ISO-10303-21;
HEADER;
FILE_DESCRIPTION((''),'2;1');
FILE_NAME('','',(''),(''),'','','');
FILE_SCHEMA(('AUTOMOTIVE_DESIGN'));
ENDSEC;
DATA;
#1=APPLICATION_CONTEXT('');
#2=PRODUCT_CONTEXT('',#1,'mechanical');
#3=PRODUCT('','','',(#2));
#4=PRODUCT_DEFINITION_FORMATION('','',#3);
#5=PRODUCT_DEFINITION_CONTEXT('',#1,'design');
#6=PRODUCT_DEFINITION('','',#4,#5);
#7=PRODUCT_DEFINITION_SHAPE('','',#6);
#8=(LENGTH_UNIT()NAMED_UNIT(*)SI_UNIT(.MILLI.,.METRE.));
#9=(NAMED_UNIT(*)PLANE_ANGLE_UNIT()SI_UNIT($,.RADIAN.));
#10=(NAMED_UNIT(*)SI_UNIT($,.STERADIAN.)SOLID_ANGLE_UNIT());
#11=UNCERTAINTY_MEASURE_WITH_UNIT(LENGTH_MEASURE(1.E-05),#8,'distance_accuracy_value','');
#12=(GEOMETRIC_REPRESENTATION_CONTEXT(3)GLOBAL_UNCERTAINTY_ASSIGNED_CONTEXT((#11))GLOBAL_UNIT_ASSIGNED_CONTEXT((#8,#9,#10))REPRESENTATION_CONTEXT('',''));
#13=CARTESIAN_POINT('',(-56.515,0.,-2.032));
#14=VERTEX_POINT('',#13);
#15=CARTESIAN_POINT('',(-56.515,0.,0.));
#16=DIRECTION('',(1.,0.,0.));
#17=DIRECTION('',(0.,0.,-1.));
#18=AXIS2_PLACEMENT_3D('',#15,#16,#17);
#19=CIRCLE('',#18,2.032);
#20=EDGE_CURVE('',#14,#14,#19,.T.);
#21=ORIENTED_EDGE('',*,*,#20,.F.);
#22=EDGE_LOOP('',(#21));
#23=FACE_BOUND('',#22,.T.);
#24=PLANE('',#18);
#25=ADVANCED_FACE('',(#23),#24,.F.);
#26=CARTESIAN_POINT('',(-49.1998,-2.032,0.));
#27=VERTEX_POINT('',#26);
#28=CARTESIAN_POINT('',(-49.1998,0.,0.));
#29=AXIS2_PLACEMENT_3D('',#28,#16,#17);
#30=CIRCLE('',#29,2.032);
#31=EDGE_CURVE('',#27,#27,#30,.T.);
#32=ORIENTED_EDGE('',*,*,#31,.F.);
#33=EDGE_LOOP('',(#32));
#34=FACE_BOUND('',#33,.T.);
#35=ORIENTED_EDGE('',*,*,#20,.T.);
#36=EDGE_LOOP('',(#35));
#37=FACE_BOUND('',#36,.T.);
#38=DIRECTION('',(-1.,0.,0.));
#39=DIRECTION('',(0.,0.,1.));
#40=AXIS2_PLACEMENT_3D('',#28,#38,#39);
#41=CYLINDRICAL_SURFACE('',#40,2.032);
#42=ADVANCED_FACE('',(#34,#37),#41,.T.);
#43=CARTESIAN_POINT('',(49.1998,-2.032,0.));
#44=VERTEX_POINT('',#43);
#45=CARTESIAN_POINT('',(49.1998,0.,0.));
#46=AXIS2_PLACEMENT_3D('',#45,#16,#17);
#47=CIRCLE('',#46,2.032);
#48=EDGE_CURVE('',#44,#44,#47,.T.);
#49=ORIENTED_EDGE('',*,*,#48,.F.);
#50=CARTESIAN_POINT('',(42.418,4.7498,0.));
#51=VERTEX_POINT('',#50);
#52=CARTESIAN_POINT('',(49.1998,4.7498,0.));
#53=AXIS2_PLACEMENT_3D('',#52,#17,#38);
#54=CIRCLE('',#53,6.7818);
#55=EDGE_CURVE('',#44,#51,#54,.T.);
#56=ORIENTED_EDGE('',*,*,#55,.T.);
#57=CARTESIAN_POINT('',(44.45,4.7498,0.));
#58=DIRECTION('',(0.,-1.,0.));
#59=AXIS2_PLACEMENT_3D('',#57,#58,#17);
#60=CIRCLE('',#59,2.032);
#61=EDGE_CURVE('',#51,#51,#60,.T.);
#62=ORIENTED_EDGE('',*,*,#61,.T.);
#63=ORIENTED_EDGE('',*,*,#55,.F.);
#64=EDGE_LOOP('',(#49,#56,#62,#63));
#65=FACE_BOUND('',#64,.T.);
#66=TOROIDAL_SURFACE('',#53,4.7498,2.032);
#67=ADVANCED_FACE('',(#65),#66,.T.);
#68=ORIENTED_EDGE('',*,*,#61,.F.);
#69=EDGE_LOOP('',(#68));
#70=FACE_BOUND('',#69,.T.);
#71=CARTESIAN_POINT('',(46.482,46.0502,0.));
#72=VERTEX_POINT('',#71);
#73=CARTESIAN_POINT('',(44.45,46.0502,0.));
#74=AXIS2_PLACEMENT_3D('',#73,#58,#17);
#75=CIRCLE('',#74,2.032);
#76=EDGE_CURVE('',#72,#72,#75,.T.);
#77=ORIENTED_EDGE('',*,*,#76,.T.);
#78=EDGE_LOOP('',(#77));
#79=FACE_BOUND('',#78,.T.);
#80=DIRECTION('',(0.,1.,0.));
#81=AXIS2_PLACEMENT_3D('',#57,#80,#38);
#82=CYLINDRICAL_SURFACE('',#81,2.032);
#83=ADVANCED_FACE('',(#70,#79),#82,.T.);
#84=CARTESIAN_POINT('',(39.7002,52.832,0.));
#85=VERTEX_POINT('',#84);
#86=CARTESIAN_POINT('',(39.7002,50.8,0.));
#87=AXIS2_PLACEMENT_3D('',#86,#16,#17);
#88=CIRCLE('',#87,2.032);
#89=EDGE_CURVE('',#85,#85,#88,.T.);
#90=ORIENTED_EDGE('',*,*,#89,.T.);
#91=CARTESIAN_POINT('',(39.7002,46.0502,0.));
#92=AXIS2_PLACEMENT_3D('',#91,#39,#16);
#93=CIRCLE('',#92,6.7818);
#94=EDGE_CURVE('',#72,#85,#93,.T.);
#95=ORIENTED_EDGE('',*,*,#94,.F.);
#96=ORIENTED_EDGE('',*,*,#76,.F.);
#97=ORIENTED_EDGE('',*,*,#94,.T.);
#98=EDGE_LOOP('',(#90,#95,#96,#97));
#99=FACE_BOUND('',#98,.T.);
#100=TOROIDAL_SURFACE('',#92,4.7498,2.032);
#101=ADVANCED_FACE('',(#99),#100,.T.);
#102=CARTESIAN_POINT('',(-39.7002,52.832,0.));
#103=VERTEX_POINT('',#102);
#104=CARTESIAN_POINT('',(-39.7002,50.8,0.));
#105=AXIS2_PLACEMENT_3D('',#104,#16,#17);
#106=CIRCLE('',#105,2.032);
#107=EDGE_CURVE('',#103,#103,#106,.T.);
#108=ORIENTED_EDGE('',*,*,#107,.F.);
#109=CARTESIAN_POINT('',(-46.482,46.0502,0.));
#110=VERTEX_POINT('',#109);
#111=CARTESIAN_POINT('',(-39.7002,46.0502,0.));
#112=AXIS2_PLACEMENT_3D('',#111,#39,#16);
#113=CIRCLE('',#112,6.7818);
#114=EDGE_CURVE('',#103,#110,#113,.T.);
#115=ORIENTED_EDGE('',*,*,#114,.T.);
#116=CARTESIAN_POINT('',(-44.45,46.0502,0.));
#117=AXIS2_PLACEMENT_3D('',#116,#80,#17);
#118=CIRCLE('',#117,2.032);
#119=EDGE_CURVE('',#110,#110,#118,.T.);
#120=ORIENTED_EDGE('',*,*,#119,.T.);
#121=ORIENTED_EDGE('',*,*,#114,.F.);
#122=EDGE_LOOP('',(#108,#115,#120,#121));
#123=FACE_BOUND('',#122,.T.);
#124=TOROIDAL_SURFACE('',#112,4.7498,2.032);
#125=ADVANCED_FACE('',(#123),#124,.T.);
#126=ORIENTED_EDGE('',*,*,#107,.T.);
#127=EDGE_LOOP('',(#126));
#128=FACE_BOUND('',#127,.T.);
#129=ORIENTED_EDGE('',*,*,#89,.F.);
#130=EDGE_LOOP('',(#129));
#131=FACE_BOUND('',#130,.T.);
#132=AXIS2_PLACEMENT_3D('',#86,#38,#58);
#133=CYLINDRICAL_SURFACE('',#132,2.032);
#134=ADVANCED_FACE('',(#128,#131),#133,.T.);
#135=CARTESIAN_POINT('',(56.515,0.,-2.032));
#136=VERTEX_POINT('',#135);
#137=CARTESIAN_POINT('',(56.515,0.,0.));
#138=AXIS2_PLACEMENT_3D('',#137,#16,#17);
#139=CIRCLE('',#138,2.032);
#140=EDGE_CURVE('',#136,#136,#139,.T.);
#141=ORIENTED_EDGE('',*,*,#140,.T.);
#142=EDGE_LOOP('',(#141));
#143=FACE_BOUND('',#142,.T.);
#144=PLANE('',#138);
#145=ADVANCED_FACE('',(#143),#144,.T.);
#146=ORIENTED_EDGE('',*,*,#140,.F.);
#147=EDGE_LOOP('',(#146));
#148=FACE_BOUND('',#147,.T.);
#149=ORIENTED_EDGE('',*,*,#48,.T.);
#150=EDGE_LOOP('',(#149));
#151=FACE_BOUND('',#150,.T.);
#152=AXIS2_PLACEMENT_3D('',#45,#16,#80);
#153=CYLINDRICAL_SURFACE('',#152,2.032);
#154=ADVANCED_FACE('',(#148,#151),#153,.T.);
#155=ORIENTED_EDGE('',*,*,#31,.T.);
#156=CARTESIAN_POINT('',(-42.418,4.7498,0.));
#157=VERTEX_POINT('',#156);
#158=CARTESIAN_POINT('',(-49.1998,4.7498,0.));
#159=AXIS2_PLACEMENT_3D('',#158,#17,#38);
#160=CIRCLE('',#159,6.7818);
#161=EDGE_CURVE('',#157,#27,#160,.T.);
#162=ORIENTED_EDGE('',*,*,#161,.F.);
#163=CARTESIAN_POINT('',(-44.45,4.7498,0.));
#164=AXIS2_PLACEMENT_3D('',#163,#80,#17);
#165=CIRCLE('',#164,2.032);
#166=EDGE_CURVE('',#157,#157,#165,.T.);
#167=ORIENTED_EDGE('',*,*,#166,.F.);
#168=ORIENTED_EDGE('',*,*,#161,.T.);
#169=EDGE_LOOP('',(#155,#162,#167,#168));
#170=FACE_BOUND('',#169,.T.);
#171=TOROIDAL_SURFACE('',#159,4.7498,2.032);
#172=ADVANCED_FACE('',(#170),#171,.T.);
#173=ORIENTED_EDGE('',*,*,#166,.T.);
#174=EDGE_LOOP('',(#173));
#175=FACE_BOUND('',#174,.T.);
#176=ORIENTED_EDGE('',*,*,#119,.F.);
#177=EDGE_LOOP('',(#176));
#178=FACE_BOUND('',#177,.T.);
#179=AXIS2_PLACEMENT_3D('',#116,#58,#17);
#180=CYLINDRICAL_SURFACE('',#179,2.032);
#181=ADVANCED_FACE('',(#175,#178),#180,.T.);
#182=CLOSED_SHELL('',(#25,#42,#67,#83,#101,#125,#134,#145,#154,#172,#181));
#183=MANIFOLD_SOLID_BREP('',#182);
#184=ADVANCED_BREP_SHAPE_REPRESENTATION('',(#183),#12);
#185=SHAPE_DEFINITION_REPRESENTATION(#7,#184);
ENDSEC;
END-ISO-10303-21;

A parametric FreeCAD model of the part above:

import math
import FreeCAD as App
import Part
import Sketcher

V = App.Vector
Q = App.Units.Quantity

doc = App.newDocument("Part")
params = doc.addObject("Spreadsheet::Sheet", "Params")
for row, (alias, value) in enumerate([
    ("sketch1_diameter", "0.16 in"),
    ("sketch2_radius", "0.187 in"),
    ("sketch2_width", "0.288 in"),
], start=1):
    params.set(f"A{row}", alias)
    params.set(f"B{row}", "=" + value)
    params.setAlias(f"B{row}", alias)

body = doc.addObject("PartDesign::Body", "Body")

# Sketch on YZ plane
sketch1 = doc.addObject("Sketcher::SketchObject", "Sketch")
body.addObject(sketch1)
sketch1.AttachmentSupport = (doc.YZ_Plane, [""])
sketch1.MapMode = "FlatFace"
sketch1.AttachmentOffset = App.Placement(V(0, 0, 2.225 * 25.4), App.Rotation())
sketch1.addGeometry(Part.Circle(V(0, 0, 0), V(0, 0, 1), 2.032), False)
sketch1.addConstraint(Sketcher.Constraint("Coincident", 0, 3, -1, 1))
sketch1.addConstraint(Sketcher.Constraint("Diameter", 0, Q("0.16 in")))
sketch1.setExpression("Constraints[1]", "Params.sketch1_diameter")

# Sketch on XY plane
sketch2 = doc.addObject("Sketcher::SketchObject", "Sketch001")
body.addObject(sketch2)
sketch2.AttachmentSupport = (doc.XY_Plane, [""])
sketch2.MapMode = "FlatFace"
sketch2.addGeometry(Part.LineSegment(V(-56.515, 0, 0), V(-49.1998, 0, 0)), False)
sketch2.addGeometry(Part.ArcOfCircle(Part.Circle(V(-49.1998, 4.7498, 0), V(0, 0, 1), 4.7498), math.radians(-90), math.radians(0)), False)
sketch2.addGeometry(Part.LineSegment(V(-44.45, 4.7498, 0), V(-44.45, 46.0502, 0)), False)
sketch2.addGeometry(Part.ArcOfCircle(Part.Circle(V(-39.7002, 46.0502, 0), V(0, 0, 1), 4.7498), math.radians(90), math.radians(180)), False)
sketch2.addGeometry(Part.LineSegment(V(-39.7002, 50.8, 0), V(39.7002, 50.8, 0)), False)
sketch2.addGeometry(Part.ArcOfCircle(Part.Circle(V(39.7002, 46.0502, 0), V(0, 0, 1), 4.7498), math.radians(0), math.radians(90)), False)
sketch2.addGeometry(Part.LineSegment(V(44.45, 46.0502, 0), V(44.45, 4.7498, 0)), False)
sketch2.addGeometry(Part.ArcOfCircle(Part.Circle(V(49.1998, 4.7498, 0), V(0, 0, 1), 4.7498), math.radians(-180), math.radians(-90)), False)
sketch2.addGeometry(Part.LineSegment(V(49.1998, 0, 0), V(56.515, 0, 0)), False)
sketch2.addConstraint(Sketcher.Constraint("Tangent", 0, 2, 1, 1))
sketch2.addConstraint(Sketcher.Constraint("Tangent", 1, 2, 2, 1))
sketch2.addConstraint(Sketcher.Constraint("Tangent", 2, 2, 3, 2))
sketch2.addConstraint(Sketcher.Constraint("Tangent", 3, 1, 4, 1))
sketch2.addConstraint(Sketcher.Constraint("Tangent", 4, 2, 5, 2))
sketch2.addConstraint(Sketcher.Constraint("Tangent", 5, 1, 6, 1))
sketch2.addConstraint(Sketcher.Constraint("Tangent", 6, 2, 7, 1))
sketch2.addConstraint(Sketcher.Constraint("Tangent", 7, 2, 8, 1))
sketch2.addConstraint(Sketcher.Constraint("Horizontal", 0))
sketch2.addConstraint(Sketcher.Constraint("Vertical", 2))
sketch2.addConstraint(Sketcher.Constraint("Horizontal", 4))
sketch2.addConstraint(Sketcher.Constraint("Vertical", 6))
sketch2.addConstraint(Sketcher.Constraint("Horizontal", 8))
sketch2.addConstraint(Sketcher.Constraint("Equal", 1, 3))
sketch2.addConstraint(Sketcher.Constraint("Equal", 3, 5))
sketch2.addConstraint(Sketcher.Constraint("Equal", 5, 7))
sketch2.addConstraint(Sketcher.Constraint("Symmetric", 0, 2, 7, 2, -1, 1))
sketch2.addConstraint(Sketcher.Constraint("Symmetric", 0, 1, 8, 2, -2))
sketch2.addConstraint(Sketcher.Constraint("DistanceY", -1, 1, 3, 1, Q("2 in")))
sketch2.addConstraint(Sketcher.Constraint("Radius", 1, Q("0.187 in")))
sketch2.addConstraint(Sketcher.Constraint("DistanceX", 1, 3, 5, 3, Q("3.5 in")))
sketch2.addConstraint(Sketcher.Constraint("DistanceX", 0, 1, 0, 2, Q("0.288 in")))
sketch2.setExpression("Constraints[19]", "Params.sketch2_radius")
sketch2.setExpression("Constraints[21]", "Params.sketch2_width")
doc.recompute()

additivepipe = doc.addObject("PartDesign::AdditivePipe", "AdditivePipe")
body.addObject(additivepipe)
additivepipe.Profile = sketch1
additivepipe.Spine = (sketch2, ["Edge1", "Edge2", "Edge3", "Edge4", "Edge5", "Edge6", "Edge7", "Edge8", "Edge9"])

doc.recompute()
